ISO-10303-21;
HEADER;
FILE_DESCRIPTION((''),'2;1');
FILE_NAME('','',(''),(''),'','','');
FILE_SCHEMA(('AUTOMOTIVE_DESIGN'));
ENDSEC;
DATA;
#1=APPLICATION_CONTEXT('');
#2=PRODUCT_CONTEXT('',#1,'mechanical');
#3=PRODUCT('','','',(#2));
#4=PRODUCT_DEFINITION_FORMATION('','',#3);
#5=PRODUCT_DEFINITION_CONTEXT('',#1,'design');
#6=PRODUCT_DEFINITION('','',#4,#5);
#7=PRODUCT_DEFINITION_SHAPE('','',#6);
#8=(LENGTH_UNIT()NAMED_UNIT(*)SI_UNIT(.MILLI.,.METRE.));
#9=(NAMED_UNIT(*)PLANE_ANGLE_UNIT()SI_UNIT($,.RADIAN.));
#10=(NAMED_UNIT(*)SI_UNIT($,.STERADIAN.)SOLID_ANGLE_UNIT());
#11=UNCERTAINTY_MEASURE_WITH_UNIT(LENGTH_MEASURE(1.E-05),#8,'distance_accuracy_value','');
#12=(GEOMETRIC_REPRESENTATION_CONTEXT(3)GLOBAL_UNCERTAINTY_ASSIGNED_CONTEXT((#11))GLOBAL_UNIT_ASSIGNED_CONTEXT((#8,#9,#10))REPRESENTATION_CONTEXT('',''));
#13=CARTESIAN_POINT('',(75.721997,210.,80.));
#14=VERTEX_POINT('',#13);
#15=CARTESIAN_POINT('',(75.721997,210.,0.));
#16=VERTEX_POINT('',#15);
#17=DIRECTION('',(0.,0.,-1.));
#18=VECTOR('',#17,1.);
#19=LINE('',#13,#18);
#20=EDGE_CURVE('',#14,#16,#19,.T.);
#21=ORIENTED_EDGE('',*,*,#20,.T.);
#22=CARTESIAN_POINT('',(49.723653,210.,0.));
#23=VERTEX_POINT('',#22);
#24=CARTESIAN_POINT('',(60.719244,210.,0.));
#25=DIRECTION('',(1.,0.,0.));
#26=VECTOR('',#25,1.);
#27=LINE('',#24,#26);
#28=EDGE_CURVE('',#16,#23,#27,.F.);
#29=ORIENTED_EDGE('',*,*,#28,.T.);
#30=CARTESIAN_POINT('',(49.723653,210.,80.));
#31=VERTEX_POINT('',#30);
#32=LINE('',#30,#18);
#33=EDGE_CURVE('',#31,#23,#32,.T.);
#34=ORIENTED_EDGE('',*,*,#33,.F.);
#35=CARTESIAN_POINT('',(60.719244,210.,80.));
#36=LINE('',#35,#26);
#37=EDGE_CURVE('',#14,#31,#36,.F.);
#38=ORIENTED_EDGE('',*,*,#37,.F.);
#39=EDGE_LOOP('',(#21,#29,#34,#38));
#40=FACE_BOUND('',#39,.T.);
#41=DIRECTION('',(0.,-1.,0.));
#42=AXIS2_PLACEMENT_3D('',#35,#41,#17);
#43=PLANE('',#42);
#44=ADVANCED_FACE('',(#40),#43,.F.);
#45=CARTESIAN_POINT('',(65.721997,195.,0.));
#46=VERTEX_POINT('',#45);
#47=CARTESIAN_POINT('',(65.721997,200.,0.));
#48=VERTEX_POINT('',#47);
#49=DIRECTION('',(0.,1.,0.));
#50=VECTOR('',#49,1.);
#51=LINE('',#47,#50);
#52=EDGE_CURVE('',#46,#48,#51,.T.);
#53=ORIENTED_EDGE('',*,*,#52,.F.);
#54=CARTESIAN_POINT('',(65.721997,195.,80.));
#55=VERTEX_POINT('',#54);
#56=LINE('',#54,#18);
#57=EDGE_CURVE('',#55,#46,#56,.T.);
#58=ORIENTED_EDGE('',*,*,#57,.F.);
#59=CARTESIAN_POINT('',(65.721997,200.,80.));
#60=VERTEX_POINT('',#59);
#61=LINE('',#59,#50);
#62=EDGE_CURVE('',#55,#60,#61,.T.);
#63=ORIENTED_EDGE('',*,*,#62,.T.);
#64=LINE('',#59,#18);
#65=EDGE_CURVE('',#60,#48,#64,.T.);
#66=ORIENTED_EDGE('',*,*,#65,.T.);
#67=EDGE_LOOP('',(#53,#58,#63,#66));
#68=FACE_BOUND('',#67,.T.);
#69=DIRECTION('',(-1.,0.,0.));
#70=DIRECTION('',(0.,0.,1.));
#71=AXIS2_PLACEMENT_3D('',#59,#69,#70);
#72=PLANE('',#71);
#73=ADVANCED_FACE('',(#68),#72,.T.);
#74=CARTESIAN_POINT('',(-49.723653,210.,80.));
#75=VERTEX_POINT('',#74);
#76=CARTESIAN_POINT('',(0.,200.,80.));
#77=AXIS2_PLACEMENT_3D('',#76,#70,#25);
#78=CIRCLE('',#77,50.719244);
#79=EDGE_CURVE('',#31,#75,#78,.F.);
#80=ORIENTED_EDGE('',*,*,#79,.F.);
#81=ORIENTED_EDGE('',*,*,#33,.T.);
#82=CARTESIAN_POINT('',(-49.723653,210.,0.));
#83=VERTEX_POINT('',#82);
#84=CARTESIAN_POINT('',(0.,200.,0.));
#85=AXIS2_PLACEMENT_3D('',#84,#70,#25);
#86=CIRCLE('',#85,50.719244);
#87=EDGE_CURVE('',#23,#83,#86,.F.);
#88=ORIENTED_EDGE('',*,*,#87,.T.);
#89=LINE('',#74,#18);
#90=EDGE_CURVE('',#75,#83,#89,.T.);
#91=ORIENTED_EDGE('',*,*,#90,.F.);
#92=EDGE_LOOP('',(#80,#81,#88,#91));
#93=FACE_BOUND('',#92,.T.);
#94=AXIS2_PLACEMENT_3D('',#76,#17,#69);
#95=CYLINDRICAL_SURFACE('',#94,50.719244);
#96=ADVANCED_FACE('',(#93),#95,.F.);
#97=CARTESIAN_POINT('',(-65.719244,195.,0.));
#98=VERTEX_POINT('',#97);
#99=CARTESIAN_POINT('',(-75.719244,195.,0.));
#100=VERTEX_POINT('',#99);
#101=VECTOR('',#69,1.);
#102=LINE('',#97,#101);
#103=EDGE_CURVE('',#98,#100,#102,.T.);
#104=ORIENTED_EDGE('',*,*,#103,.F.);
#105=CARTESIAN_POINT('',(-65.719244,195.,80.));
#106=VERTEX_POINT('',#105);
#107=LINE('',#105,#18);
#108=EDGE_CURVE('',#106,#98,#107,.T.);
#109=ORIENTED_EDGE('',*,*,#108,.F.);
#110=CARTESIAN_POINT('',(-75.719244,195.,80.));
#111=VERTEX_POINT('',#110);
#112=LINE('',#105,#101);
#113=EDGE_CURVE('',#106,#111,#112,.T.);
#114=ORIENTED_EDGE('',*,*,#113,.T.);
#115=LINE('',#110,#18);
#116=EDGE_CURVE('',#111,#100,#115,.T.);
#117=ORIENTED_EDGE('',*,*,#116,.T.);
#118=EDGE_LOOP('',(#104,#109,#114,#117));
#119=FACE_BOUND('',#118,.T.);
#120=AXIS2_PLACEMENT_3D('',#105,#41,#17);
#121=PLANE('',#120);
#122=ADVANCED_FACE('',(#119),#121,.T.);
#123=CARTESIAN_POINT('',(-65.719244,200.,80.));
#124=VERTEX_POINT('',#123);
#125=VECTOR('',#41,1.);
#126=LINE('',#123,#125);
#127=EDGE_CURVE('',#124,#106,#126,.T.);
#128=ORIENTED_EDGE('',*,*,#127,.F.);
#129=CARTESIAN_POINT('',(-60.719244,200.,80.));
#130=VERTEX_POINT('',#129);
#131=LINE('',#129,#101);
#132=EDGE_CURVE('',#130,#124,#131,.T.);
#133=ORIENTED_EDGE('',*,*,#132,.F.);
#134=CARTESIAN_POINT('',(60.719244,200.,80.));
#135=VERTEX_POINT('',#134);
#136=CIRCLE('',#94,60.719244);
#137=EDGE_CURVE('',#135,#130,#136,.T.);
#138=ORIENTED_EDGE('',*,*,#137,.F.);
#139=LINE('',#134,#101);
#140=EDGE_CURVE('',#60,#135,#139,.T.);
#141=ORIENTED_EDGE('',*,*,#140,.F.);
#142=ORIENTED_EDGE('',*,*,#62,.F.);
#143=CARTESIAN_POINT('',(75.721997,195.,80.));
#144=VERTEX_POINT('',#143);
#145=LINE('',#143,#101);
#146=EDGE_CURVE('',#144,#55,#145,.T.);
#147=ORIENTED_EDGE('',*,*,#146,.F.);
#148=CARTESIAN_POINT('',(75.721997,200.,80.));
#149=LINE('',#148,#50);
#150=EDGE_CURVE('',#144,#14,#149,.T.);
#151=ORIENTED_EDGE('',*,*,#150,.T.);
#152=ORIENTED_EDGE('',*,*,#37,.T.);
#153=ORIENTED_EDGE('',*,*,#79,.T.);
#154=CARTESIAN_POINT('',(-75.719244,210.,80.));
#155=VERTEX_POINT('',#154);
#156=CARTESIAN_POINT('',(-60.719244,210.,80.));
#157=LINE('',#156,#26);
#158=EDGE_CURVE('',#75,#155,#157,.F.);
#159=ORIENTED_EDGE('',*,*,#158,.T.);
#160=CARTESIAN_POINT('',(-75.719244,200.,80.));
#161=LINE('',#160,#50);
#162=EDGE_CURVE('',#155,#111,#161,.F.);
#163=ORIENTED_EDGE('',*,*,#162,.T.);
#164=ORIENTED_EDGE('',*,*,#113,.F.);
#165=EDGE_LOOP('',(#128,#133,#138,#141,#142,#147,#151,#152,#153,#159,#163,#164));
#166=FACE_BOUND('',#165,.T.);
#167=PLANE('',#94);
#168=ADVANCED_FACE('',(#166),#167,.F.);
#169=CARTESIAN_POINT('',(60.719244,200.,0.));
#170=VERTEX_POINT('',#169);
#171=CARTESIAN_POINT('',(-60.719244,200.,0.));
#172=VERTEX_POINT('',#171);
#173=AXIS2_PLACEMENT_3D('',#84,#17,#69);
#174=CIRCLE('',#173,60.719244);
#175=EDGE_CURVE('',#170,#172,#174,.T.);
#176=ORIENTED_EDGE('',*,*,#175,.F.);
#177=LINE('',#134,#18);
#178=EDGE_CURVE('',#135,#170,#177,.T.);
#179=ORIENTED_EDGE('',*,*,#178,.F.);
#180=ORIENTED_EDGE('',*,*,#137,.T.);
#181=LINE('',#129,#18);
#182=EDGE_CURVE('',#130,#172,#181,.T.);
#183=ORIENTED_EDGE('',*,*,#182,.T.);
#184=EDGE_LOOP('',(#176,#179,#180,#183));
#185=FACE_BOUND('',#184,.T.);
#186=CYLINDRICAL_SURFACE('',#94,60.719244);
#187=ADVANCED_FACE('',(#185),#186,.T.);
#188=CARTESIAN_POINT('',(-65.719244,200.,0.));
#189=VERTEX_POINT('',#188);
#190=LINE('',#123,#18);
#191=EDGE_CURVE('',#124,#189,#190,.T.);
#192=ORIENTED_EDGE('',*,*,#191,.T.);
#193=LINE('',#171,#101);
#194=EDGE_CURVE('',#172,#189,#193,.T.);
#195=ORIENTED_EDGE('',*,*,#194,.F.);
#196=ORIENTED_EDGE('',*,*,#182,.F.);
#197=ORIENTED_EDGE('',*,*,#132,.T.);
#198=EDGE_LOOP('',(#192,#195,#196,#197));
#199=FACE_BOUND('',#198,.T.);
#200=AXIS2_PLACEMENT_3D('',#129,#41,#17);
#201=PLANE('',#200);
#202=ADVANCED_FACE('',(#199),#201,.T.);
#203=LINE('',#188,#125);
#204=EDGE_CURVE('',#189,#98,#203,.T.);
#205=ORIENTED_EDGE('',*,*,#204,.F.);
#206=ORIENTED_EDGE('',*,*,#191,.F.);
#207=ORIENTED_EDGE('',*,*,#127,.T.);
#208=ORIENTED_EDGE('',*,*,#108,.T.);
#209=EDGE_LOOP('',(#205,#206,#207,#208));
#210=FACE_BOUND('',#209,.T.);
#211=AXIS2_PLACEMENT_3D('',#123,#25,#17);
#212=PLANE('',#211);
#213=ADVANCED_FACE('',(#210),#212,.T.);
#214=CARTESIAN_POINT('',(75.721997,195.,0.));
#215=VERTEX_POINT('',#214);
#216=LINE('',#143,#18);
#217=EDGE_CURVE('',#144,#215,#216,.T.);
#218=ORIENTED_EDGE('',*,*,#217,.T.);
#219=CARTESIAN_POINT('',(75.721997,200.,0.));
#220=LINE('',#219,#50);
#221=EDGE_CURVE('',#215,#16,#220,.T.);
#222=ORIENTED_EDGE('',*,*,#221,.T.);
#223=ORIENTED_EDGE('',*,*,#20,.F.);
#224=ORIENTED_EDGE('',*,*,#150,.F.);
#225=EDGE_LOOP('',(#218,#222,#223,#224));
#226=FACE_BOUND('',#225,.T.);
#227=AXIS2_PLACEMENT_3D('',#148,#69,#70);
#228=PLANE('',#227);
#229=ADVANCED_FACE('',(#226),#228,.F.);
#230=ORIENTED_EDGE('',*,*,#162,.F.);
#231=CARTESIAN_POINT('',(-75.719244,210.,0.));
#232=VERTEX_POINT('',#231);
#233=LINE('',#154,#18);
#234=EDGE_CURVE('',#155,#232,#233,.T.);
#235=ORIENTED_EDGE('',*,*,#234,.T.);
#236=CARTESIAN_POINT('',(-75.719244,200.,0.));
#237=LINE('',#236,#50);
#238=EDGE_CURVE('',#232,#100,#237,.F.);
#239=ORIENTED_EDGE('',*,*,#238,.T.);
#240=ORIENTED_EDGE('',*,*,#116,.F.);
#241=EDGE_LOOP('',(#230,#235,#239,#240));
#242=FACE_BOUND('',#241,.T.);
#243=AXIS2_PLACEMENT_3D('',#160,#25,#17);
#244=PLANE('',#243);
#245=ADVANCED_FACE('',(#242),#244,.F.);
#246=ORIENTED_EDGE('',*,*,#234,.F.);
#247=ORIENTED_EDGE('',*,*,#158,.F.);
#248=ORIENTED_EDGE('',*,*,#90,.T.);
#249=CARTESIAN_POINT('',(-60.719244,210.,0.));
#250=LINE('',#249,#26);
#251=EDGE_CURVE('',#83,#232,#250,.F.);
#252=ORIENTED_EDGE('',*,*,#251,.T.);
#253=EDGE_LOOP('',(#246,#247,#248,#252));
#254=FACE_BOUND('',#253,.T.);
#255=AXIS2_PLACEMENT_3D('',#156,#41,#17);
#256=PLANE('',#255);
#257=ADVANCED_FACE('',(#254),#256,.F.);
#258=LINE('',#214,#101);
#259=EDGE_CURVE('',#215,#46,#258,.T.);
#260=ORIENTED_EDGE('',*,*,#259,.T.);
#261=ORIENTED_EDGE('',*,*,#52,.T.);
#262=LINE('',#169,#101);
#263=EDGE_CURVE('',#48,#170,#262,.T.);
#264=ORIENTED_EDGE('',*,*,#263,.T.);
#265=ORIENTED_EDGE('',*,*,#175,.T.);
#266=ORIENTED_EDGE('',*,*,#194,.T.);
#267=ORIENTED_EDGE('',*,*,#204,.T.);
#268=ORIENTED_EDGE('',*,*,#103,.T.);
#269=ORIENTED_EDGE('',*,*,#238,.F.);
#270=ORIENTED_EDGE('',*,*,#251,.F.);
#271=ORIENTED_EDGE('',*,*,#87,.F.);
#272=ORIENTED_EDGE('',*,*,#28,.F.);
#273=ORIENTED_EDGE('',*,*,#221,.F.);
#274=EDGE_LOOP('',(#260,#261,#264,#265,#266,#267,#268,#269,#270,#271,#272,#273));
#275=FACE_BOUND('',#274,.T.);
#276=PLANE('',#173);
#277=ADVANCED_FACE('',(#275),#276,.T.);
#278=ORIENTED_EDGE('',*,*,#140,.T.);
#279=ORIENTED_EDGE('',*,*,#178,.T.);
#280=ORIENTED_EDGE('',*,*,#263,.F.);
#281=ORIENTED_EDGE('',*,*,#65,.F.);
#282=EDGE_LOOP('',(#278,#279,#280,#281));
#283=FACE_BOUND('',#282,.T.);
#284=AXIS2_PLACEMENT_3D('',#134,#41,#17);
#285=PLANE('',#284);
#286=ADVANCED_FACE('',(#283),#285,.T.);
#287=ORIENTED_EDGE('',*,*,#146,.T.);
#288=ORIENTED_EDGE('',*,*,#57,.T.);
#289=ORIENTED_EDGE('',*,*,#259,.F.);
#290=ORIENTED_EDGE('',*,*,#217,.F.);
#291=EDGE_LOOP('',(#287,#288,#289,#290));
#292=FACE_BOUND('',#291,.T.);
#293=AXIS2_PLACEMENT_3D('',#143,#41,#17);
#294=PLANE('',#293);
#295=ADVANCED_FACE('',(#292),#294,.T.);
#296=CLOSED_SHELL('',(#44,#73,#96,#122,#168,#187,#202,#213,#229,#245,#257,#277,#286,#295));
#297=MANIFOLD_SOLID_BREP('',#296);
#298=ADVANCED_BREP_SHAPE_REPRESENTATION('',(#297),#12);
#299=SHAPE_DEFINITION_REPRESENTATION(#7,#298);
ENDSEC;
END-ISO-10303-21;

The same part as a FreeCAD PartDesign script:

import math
import FreeCAD as App
import Part
import Sketcher
from FreeCAD import Vector
Q = App.Units.Quantity

doc = App.newDocument("Part")
body = doc.addObject("PartDesign::Body", "Body")

# Sketch on XY plane
sketch1 = body.newObject("Sketcher::SketchObject", "Sketch")
sketch1.AttachmentSupport = (doc.getObject("XY_Plane"), [""])
sketch1.MapMode = "FlatFace"
sketch1.addGeometry([
    Part.LineSegment(Vector(-66, 195, 0), Vector(-66, 200, 0)),  # 0
    Part.LineSegment(Vector(-66, 200, 0), Vector(-61, 200, 0)),  # 1
    Part.ArcOfCircle(Part.Circle(Vector(0, 200, 0), Vector(0, 0, 1), 61), math.radians(180), math.radians(360)),  # 2
    Part.LineSegment(Vector(61, 200, 0), Vector(66, 200, 0)),  # 3
    Part.LineSegment(Vector(66, 200, 0), Vector(66, 195, 0)),  # 4
    Part.LineSegment(Vector(66, 195, 0), Vector(76, 195, 0)),  # 5
    Part.LineSegment(Vector(76, 195, 0), Vector(76, 210, 0)),  # 6
    Part.LineSegment(Vector(76, 210, 0), Vector(50, 210, 0)),  # 7
    Part.ArcOfCircle(Part.Circle(Vector(0, 200, 0), Vector(0, 0, 1), 51), math.radians(169), math.radians(371)),  # 8
    Part.LineSegment(Vector(-50, 210, 0), Vector(-76, 210, 0)),  # 9
    Part.LineSegment(Vector(-76, 210, 0), Vector(-76, 195, 0)),  # 10
    Part.LineSegment(Vector(-76, 195, 0), Vector(-66, 195, 0)),  # 11
], False)
sketch1.addConstraint([
    Sketcher.Constraint("Coincident", 0, 2, 1, 1),
    Sketcher.Constraint("Coincident", 1, 2, 2, 1),
    Sketcher.Constraint("Coincident", 2, 2, 3, 1),
    Sketcher.Constraint("Coincident", 3, 2, 4, 1),
    Sketcher.Constraint("Coincident", 4, 2, 5, 1),
    Sketcher.Constraint("Coincident", 5, 2, 6, 1),
    Sketcher.Constraint("Coincident", 6, 2, 7, 1),
    Sketcher.Constraint("Coincident", 7, 2, 8, 2),
    Sketcher.Constraint("Coincident", 8, 1, 9, 1),
    Sketcher.Constraint("Coincident", 9, 2, 10, 1),
    Sketcher.Constraint("Coincident", 10, 2, 11, 1),
    Sketcher.Constraint("Coincident", 11, 2, 0, 1),
    Sketcher.Constraint("Vertical", 0),
    Sketcher.Constraint("Horizontal", 1),
    Sketcher.Constraint("Horizontal", 3),
    Sketcher.Constraint("Vertical", 4),
    Sketcher.Constraint("Horizontal", 5),
    Sketcher.Constraint("Vertical", 6),
    Sketcher.Constraint("Horizontal", 7),
    Sketcher.Constraint("Horizontal", 9),
    Sketcher.Constraint("Vertical", 10),
    Sketcher.Constraint("Horizontal", 11),
    Sketcher.Constraint("Coincident", 8, 3, 2, 3),
    Sketcher.Constraint("Symmetric", 1, 2, 2, 2, -2),
    Sketcher.Constraint("Horizontal", 8, 3, 0, 2),
    Sketcher.Constraint("Horizontal", 7, 2, 8, 1),
    Sketcher.Constraint("Horizontal", 5, 2, 10, 2),
    Sketcher.Constraint("Equal", 5, 11),
    Sketcher.Constraint("Equal", 1, 0),
    Sketcher.Constraint("DistanceX", 1, 1, 1, 2, Q("5 mm")),
    Sketcher.Constraint("DistanceX", 5, 1, 5, 2, Q("10 mm")),
    Sketcher.Constraint("DistanceY", 6, 1, 6, 2, Q("15 mm")),
    Sketcher.Constraint("DistanceY", -1, 1, 2, 3, Q("200 mm")),
    Sketcher.Constraint("Radius", 2, Q("60.719244 mm")),
    Sketcher.Constraint("Radius", 8, Q("50.719244 mm")),
    Sketcher.Constraint("DistanceX", 3, 1, 3, 2, Q("5.002754 mm")),
])
pad1 = body.newObject("PartDesign::Pad", "Pad")
pad1.Profile = sketch1
pad1.Length = 80

doc.recompute()
